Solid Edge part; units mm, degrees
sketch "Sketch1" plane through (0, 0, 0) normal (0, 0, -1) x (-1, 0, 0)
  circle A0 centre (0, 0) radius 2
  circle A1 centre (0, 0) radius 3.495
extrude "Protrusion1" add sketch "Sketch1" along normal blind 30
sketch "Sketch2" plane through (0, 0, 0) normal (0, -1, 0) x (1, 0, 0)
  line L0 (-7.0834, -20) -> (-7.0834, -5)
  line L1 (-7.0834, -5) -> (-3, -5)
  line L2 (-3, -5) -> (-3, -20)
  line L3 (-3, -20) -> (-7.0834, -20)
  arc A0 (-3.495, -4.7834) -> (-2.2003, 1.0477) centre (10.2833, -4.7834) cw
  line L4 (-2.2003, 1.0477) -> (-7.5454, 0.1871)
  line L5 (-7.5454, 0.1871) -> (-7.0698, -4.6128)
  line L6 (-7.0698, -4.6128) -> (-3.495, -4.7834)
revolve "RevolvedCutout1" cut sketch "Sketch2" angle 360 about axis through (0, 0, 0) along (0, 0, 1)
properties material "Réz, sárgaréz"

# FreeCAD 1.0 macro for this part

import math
import FreeCAD as App
import Part
import Sketcher
from FreeCAD import Vector


def add_polygon(sketch, points):
    """Adds a closed chain of lines whose ends are joined by coincident constraints."""
    first, n = sketch.GeometryCount, len(points)
    for a, b in zip(points, points[1:] + points[:1]):
        sketch.addGeometry(Part.LineSegment(App.Vector(*a, 0), App.Vector(*b, 0)), False)
    for i in range(n):
        sketch.addConstraint(Sketcher.Constraint("Coincident", first + i, 2, first + (i + 1) % n, 1))

doc = App.newDocument("Part")
body = doc.addObject("PartDesign::Body", "Body")

# Sketch on XY plane
sketch1 = body.newObject("Sketcher::SketchObject", "Sketch")
sketch1.AttachmentSupport = (doc.getObject("XY_Plane"), [""])
sketch1.MapMode = "FlatFace"
sketch1.addGeometry([
    Part.Circle(Vector(0, 0, 0), Vector(0, 0, 1), 3.5),
    Part.Circle(Vector(0, 0, 0), Vector(0, 0, 1), 2),
], False)
sketch1.addConstraint([
    Sketcher.Constraint("Coincident", 0, 3, -1, 1),
    Sketcher.Constraint("Coincident", 1, 3, -1, 1),
    Sketcher.Constraint("Diameter", 1, 4.0),
    Sketcher.Constraint("Diameter", 0, 6.99),
])
pad1 = body.newObject("PartDesign::Pad", "Pad")
pad1.Profile = sketch1
pad1.Length = 30
pad1.Reversed = True

# Sketch on XZ plane
sketch2 = body.newObject("Sketcher::SketchObject", "Sketch001")
sketch2.AttachmentSupport = (doc.getObject("XZ_Plane"), [""])
sketch2.MapMode = "FlatFace"
add_polygon(sketch2, [(-7.1, -5), (-7.1, -20), (-3, -20), (-3, -5)])  # lines 0-3
sketch2.addGeometry(Part.LineSegment(Vector(-7.1, -4.6, 0), Vector(-3.5, -4.8, 0)), False)  # 4
sketch2.addGeometry(Part.ArcOfCircle(Part.Circle(Vector(10.3, -4.8, 0), Vector(0, 0, 1), 13.8), math.radians(155), math.radians(180)), False)  # 5
sketch2.addGeometry(Part.LineSegment(Vector(-2.2, 1, 0), Vector(-7.5, 0.2, 0)), False)  # 6
sketch2.addGeometry(Part.LineSegment(Vector(-7.5, 0.2, 0), Vector(-7.1, -4.6, 0)), False)  # 7
sketch2.addConstraint([
    Sketcher.Constraint("Coincident", 4, 2, 5, 2),
    Sketcher.Constraint("Coincident", 5, 1, 6, 1),
    Sketcher.Constraint("Coincident", 6, 2, 7, 1),
    Sketcher.Constraint("Coincident", 7, 2, 4, 1),
    Sketcher.Constraint("Vertical", 0),
    Sketcher.Constraint("Horizontal", 1),
    Sketcher.Constraint("Vertical", 2),
    Sketcher.Constraint("Horizontal", 3),
    Sketcher.Constraint("Horizontal", 5, 3, 4, 2),
    Sketcher.Constraint("DistanceY", 0, 2, 0, 1, 15.0),
    Sketcher.Constraint("DistanceY", 0, 2, -1, 1, 20.0),
    Sketcher.Constraint("DistanceX", 1, 2, -1, 1, 3.0),
    Sketcher.Constraint("Radius", 5, 13.7783),
    Sketcher.Constraint("DistanceY", 7, 2, 6, 2, 4.8),
    Sketcher.Constraint("Distance", 6, 5.414),
    Sketcher.Constraint("DistanceX", 1, 1, 1, 2, 4.0834),
    Sketcher.Constraint("DistanceX", 4, 2, -1, 1, 3.495),
    Sketcher.Constraint("DistanceY", -1, 1, 6, 2, 0.187),
    Sketcher.Constraint("DistanceY", 4, 2, 5, 1, 5.831),
    Sketcher.Constraint("DistanceX", 6, 2, 3, 2, 0.462),
    Sketcher.Constraint("Distance", 4, 3.5789),
])
groove = body.newObject("PartDesign::Groove", "Groove")
groove.Profile = sketch2
groove.ReferenceAxis = (sketch2, ["V_Axis"])
groove.Angle = 360

doc.recompute()
